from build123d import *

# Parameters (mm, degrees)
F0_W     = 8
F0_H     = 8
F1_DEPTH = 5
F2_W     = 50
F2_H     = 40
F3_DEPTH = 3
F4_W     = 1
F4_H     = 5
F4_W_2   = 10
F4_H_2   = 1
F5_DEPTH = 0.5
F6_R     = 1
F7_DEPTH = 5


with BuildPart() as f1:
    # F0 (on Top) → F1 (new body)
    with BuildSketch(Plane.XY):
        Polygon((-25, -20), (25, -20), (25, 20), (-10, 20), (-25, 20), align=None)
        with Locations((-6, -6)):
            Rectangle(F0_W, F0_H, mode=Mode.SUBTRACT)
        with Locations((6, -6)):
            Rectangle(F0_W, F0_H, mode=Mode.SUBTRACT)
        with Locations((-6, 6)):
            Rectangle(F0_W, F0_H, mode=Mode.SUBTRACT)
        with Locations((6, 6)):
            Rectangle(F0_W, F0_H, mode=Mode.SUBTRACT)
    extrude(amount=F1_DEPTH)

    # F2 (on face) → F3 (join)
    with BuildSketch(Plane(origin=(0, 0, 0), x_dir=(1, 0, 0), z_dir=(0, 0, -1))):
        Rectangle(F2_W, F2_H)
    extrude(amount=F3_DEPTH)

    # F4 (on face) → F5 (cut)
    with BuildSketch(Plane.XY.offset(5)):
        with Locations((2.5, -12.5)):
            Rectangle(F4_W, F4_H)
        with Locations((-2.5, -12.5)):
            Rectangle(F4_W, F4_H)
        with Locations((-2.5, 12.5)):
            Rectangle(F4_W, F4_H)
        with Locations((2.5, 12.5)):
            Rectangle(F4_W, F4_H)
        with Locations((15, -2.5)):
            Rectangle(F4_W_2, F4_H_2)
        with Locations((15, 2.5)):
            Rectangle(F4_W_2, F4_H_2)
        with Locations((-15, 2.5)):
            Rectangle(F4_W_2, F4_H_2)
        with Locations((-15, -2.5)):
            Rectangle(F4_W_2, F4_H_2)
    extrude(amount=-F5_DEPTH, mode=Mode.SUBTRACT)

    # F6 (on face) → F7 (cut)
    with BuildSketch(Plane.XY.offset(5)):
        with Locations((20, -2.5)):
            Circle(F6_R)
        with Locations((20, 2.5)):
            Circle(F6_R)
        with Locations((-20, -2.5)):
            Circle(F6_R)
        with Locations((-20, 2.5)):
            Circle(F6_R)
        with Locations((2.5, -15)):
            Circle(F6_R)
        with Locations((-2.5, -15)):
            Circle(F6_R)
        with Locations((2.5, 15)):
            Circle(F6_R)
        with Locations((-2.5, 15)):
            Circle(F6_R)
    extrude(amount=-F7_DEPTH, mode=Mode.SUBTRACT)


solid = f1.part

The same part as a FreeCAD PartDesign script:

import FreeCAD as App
import Part
import Sketcher

V = App.Vector

doc = App.newDocument("Part")
params = doc.addObject("Spreadsheet::Sheet", "Params")
for row, (alias, value) in enumerate([
    ("sketch1_width", "50 mm"),
    ("sketch1_width2", "8 mm"),
    ("sketch1_height", "40 mm"),
    ("pad1_length", "5 mm"),
    ("sketch2_width", "50 mm"),
    ("sketch2_height", "40 mm"),
    ("pad2_length", "3 mm"),
    ("sketch3_width", "1 mm"),
    ("sketch3_width2", "10 mm"),
    ("sketch3_height", "5 mm"),
    ("pocket1_length", "0.5 mm"),
    ("sketch4_diameter", "2 mm"),
    ("pocket2_length", "5 mm"),
], start=1):
    params.set(f"A{row}", alias)
    params.set(f"B{row}", "=" + value)
    params.setAlias(f"B{row}", alias)

body = doc.addObject("PartDesign::Body", "Body")

sketch1 = body.newObject("Sketcher::SketchObject", "Sketch")
sketch1.AttachmentSupport = (doc.getObject("XY_Plane"), [""])
sketch1.MapMode = "FlatFace"
sketch1.addGeometry(Part.LineSegment(V(-25, -20, 0), V(25, -20, 0)), False)
sketch1.addGeometry(Part.LineSegment(V(25, -20, 0), V(25, 20, 0)), False)
sketch1.addGeometry(Part.LineSegment(V(25, 20, 0), V(-25, 20, 0)), False)
sketch1.addGeometry(Part.LineSegment(V(-25, 20, 0), V(-25, -20, 0)), False)
sketch1.addGeometry(Part.LineSegment(V(-2, -10, 0), V(-10, -10, 0)), False)
sketch1.addGeometry(Part.LineSegment(V(-10, -10, 0), V(-10, -2, 0)), False)
sketch1.addGeometry(Part.LineSegment(V(-10, -2, 0), V(-2, -2, 0)), False)
sketch1.addGeometry(Part.LineSegment(V(-2, -2, 0), V(-2, -10, 0)), False)
sketch1.addGeometry(Part.LineSegment(V(10, -10, 0), V(2, -10, 0)), False)
sketch1.addGeometry(Part.LineSegment(V(2, -10, 0), V(2, -2, 0)), False)
sketch1.addGeometry(Part.LineSegment(V(2, -2, 0), V(10, -2, 0)), False)
sketch1.addGeometry(Part.LineSegment(V(10, -2, 0), V(10, -10, 0)), False)
sketch1.addGeometry(Part.LineSegment(V(-2, 2, 0), V(-10, 2, 0)), False)
sketch1.addGeometry(Part.LineSegment(V(-10, 2, 0), V(-10, 10, 0)), False)
sketch1.addGeometry(Part.LineSegment(V(-10, 10, 0), V(-2, 10, 0)), False)
sketch1.addGeometry(Part.LineSegment(V(-2, 10, 0), V(-2, 2, 0)), False)
sketch1.addGeometry(Part.LineSegment(V(10, 2, 0), V(2, 2, 0)), False)
sketch1.addGeometry(Part.LineSegment(V(2, 2, 0), V(2, 10, 0)), False)
sketch1.addGeometry(Part.LineSegment(V(2, 10, 0), V(10, 10, 0)), False)
sketch1.addGeometry(Part.LineSegment(V(10, 10, 0), V(10, 2, 0)), False)
sketch1.addConstraint(Sketcher.Constraint("Coincident", 0, 2, 1, 1))
sketch1.addConstraint(Sketcher.Constraint("Coincident", 1, 2, 2, 1))
sketch1.addConstraint(Sketcher.Constraint("Coincident", 2, 2, 3, 1))
sketch1.addConstraint(Sketcher.Constraint("Coincident", 3, 2, 0, 1))
sketch1.addConstraint(Sketcher.Constraint("Coincident", 4, 2, 5, 1))
sketch1.addConstraint(Sketcher.Constraint("Coincident", 5, 2, 6, 1))
sketch1.addConstraint(Sketcher.Constraint("Coincident", 6, 2, 7, 1))
sketch1.addConstraint(Sketcher.Constraint("Coincident", 7, 2, 4, 1))
sketch1.addConstraint(Sketcher.Constraint("Coincident", 8, 2, 9, 1))
sketch1.addConstraint(Sketcher.Constraint("Coincident", 9, 2, 10, 1))
sketch1.addConstraint(Sketcher.Constraint("Coincident", 10, 2, 11, 1))
sketch1.addConstraint(Sketcher.Constraint("Coincident", 11, 2, 8, 1))
sketch1.addConstraint(Sketcher.Constraint("Coincident", 12, 2, 13, 1))
sketch1.addConstraint(Sketcher.Constraint("Coincident", 13, 2, 14, 1))
sketch1.addConstraint(Sketcher.Constraint("Coincident", 14, 2, 15, 1))
sketch1.addConstraint(Sketcher.Constraint("Coincident", 15, 2, 12, 1))
sketch1.addConstraint(Sketcher.Constraint("Coincident", 16, 2, 17, 1))
sketch1.addConstraint(Sketcher.Constraint("Coincident", 17, 2, 18, 1))
sketch1.addConstraint(Sketcher.Constraint("Coincident", 18, 2, 19, 1))
sketch1.addConstraint(Sketcher.Constraint("Coincident", 19, 2, 16, 1))
sketch1.addConstraint(Sketcher.Constraint("Horizontal", 0))
sketch1.addConstraint(Sketcher.Constraint("Vertical", 1))
sketch1.addConstraint(Sketcher.Constraint("Horizontal", 2))
sketch1.addConstraint(Sketcher.Constraint("Vertical", 3))
sketch1.addConstraint(Sketcher.Constraint("Horizontal", 4))
sketch1.addConstraint(Sketcher.Constraint("Vertical", 5))
sketch1.addConstraint(Sketcher.Constraint("Horizontal", 6))
sketch1.addConstraint(Sketcher.Constraint("Vertical", 7))
sketch1.addConstraint(Sketcher.Constraint("Horizontal", 8))
sketch1.addConstraint(Sketcher.Constraint("Vertical", 9))
sketch1.addConstraint(Sketcher.Constraint("Horizontal", 10))
sketch1.addConstraint(Sketcher.Constraint("Vertical", 11))
sketch1.addConstraint(Sketcher.Constraint("Horizontal", 12))
sketch1.addConstraint(Sketcher.Constraint("Vertical", 13))
sketch1.addConstraint(Sketcher.Constraint("Horizontal", 14))
sketch1.addConstraint(Sketcher.Constraint("Vertical", 15))
sketch1.addConstraint(Sketcher.Constraint("Horizontal", 16))
sketch1.addConstraint(Sketcher.Constraint("Vertical", 17))
sketch1.addConstraint(Sketcher.Constraint("Horizontal", 18))
sketch1.addConstraint(Sketcher.Constraint("Vertical", 19))
sketch1.addConstraint(Sketcher.Constraint("Symmetric", 0, 2, 2, 2, -1, 1))
sketch1.addConstraint(Sketcher.Constraint("Symmetric", 10, 2, 12, 2, -1, 1))
sketch1.addConstraint(Sketcher.Constraint("Symmetric", 8, 2, 14, 2, -1, 1))
sketch1.addConstraint(Sketcher.Constraint("Symmetric", 6, 2, 16, 2, -1, 1))
sketch1.addConstraint(Sketcher.Constraint("Symmetric", 4, 2, 18, 2, -1, 1))
sketch1.addConstraint(Sketcher.Constraint("Symmetric", 7, 2, 8, 2, -2))
sketch1.addConstraint(Sketcher.Constraint("Symmetric", 5, 2, 10, 2, -2))
sketch1.addConstraint(Sketcher.Constraint("Equal", 18, 5))
sketch1.addConstraint(Sketcher.Constraint("DistanceX", 0, 1, 0, 2, 50.0))
sketch1.addConstraint(Sketcher.Constraint("DistanceX", 4, 2, 4, 1, 8.0))
sketch1.addConstraint(Sketcher.Constraint("DistanceY", 1, 1, 1, 2, 40.0))
sketch1.addConstraint(Sketcher.Constraint("DistanceX", 4, 2, -1, 1, 10.0))
sketch1.addConstraint(Sketcher.Constraint("DistanceY", 4, 2, -1, 1, 10.0))
sketch1.setExpression("Constraints[48]", "Params.sketch1_width")
sketch1.setExpression("Constraints[49]", "Params.sketch1_width2")
sketch1.setExpression("Constraints[50]", "Params.sketch1_height")
pad1 = body.newObject("PartDesign::Pad", "Pad")
pad1.Profile = sketch1
pad1.setExpression("Length", "Params.pad1_length")

sketch2 = body.newObject("Sketcher::SketchObject", "Sketch001")
sketch2.AttachmentSupport = (doc.getObject("XY_Plane"), [""])
sketch2.MapMode = "FlatFace"
sketch2.addGeometry(Part.LineSegment(V(-25, -20, 0), V(-25, 20, 0)), False)
sketch2.addGeometry(Part.LineSegment(V(-25, 20, 0), V(25, 20, 0)), False)
sketch2.addGeometry(Part.LineSegment(V(25, 20, 0), V(25, -20, 0)), False)
sketch2.addGeometry(Part.LineSegment(V(25, -20, 0), V(-25, -20, 0)), False)
sketch2.addConstraint(Sketcher.Constraint("Coincident", 0, 2, 1, 1))
sketch2.addConstraint(Sketcher.Constraint("Coincident", 1, 2, 2, 1))
sketch2.addConstraint(Sketcher.Constraint("Coincident", 2, 2, 3, 1))
sketch2.addConstraint(Sketcher.Constraint("Coincident", 3, 2, 0, 1))
sketch2.addConstraint(Sketcher.Constraint("Vertical", 0))
sketch2.addConstraint(Sketcher.Constraint("Horizontal", 1))
sketch2.addConstraint(Sketcher.Constraint("Vertical", 2))
sketch2.addConstraint(Sketcher.Constraint("Horizontal", 3))
sketch2.addConstraint(Sketcher.Constraint("Symmetric", 0, 2, 2, 2, -1, 1))
sketch2.addConstraint(Sketcher.Constraint("DistanceX", 1, 1, 1, 2, 50.0))
sketch2.addConstraint(Sketcher.Constraint("DistanceY", 0, 1, 0, 2, 40.0))
sketch2.setExpression("Constraints[9]", "Params.sketch2_width")
sketch2.setExpression("Constraints[10]", "Params.sketch2_height")
pad2 = body.newObject("PartDesign::Pad", "Pad001")
pad2.Profile = sketch2
pad2.setExpression("Length", "Params.pad2_length")
pad2.Reversed = True

sketch3 = body.newObject("Sketcher::SketchObject", "Sketch002")
sketch3.AttachmentSupport = (doc.getObject("XY_Plane"), [""])
sketch3.MapMode = "FlatFace"
sketch3.AttachmentOffset = App.Placement(V(0, 0, 5), App.Rotation())
sketch3.addGeometry(Part.LineSegment(V(2, -10, 0), V(2, -15, 0)), False)
sketch3.addGeometry(Part.LineSegment(V(2, -15, 0), V(3, -15, 0)), False)
sketch3.addGeometry(Part.LineSegment(V(3, -15, 0), V(3, -10, 0)), False)
sketch3.addGeometry(Part.LineSegment(V(3, -10, 0), V(2, -10, 0)), False)
sketch3.addGeometry(Part.LineSegment(V(-3, -10, 0), V(-3, -15, 0)), False)
sketch3.addGeometry(Part.LineSegment(V(-3, -15, 0), V(-2, -15, 0)), False)
sketch3.addGeometry(Part.LineSegment(V(-2, -15, 0), V(-2, -10, 0)), False)
sketch3.addGeometry(Part.LineSegment(V(-2, -10, 0), V(-3, -10, 0)), False)
sketch3.addGeometry(Part.LineSegment(V(-3, 15, 0), V(-3, 10, 0)), False)
sketch3.addGeometry(Part.LineSegment(V(-3, 10, 0), V(-2, 10, 0)), False)
sketch3.addGeometry(Part.LineSegment(V(-2, 10, 0), V(-2, 15, 0)), False)
sketch3.addGeometry(Part.LineSegment(V(-2, 15, 0), V(-3, 15, 0)), False)
sketch3.addGeometry(Part.LineSegment(V(2, 15, 0), V(2, 10, 0)), False)
sketch3.addGeometry(Part.LineSegment(V(2, 10, 0), V(3, 10, 0)), False)
sketch3.addGeometry(Part.LineSegment(V(3, 10, 0), V(3, 15, 0)), False)
sketch3.addGeometry(Part.LineSegment(V(3, 15, 0), V(2, 15, 0)), False)
sketch3.addGeometry(Part.LineSegment(V(10, -2, 0), V(10, -3, 0)), False)
sketch3.addGeometry(Part.LineSegment(V(10, -3, 0), V(20, -3, 0)), False)
sketch3.addGeometry(Part.LineSegment(V(20, -3, 0), V(20, -2, 0)), False)
sketch3.addGeometry(Part.LineSegment(V(20, -2, 0), V(10, -2, 0)), False)
sketch3.addGeometry(Part.LineSegment(V(10, 3, 0), V(10, 2, 0)), False)
sketch3.addGeometry(Part.LineSegment(V(10, 2, 0), V(20, 2, 0)), False)
sketch3.addGeometry(Part.LineSegment(V(20, 2, 0), V(20, 3, 0)), False)
sketch3.addGeometry(Part.LineSegment(V(20, 3, 0), V(10, 3, 0)), False)
sketch3.addGeometry(Part.LineSegment(V(-20, 3, 0), V(-20, 2, 0)), False)
sketch3.addGeometry(Part.LineSegment(V(-20, 2, 0), V(-10, 2, 0)), False)
sketch3.addGeometry(Part.LineSegment(V(-10, 2, 0), V(-10, 3, 0)), False)
sketch3.addGeometry(Part.LineSegment(V(-10, 3, 0), V(-20, 3, 0)), False)
sketch3.addGeometry(Part.LineSegment(V(-20, -2, 0), V(-20, -3, 0)), False)
sketch3.addGeometry(Part.LineSegment(V(-20, -3, 0), V(-10, -3, 0)), False)
sketch3.addGeometry(Part.LineSegment(V(-10, -3, 0), V(-10, -2, 0)), False)
sketch3.addGeometry(Part.LineSegment(V(-10, -2, 0), V(-20, -2, 0)), False)
sketch3.addConstraint(Sketcher.Constraint("Coincident", 0, 2, 1, 1))
sketch3.addConstraint(Sketcher.Constraint("Coincident", 1, 2, 2, 1))
sketch3.addConstraint(Sketcher.Constraint("Coincident", 2, 2, 3, 1))
sketch3.addConstraint(Sketcher.Constraint("Coincident", 3, 2, 0, 1))
sketch3.addConstraint(Sketcher.Constraint("Coincident", 4, 2, 5, 1))
sketch3.addConstraint(Sketcher.Constraint("Coincident", 5, 2, 6, 1))
sketch3.addConstraint(Sketcher.Constraint("Coincident", 6, 2, 7, 1))
sketch3.addConstraint(Sketcher.Constraint("Coincident", 7, 2, 4, 1))
sketch3.addConstraint(Sketcher.Constraint("Coincident", 8, 2, 9, 1))
sketch3.addConstraint(Sketcher.Constraint("Coincident", 9, 2, 10, 1))
sketch3.addConstraint(Sketcher.Constraint("Coincident", 10, 2, 11, 1))
sketch3.addConstraint(Sketcher.Constraint("Coincident", 11, 2, 8, 1))
sketch3.addConstraint(Sketcher.Constraint("Coincident", 12, 2, 13, 1))
sketch3.addConstraint(Sketcher.Constraint("Coincident", 13, 2, 14, 1))
sketch3.addConstraint(Sketcher.Constraint("Coincident", 14, 2, 15, 1))
sketch3.addConstraint(Sketcher.Constraint("Coincident", 15, 2, 12, 1))
sketch3.addConstraint(Sketcher.Constraint("Coincident", 16, 2, 17, 1))
sketch3.addConstraint(Sketcher.Constraint("Coincident", 17, 2, 18, 1))
sketch3.addConstraint(Sketcher.Constraint("Coincident", 18, 2, 19, 1))
sketch3.addConstraint(Sketcher.Constraint("Coincident", 19, 2, 16, 1))
sketch3.addConstraint(Sketcher.Constraint("Coincident", 20, 2, 21, 1))
sketch3.addConstraint(Sketcher.Constraint("Coincident", 21, 2, 22, 1))
sketch3.addConstraint(Sketcher.Constraint("Coincident", 22, 2, 23, 1))
sketch3.addConstraint(Sketcher.Constraint("Coincident", 23, 2, 20, 1))
sketch3.addConstraint(Sketcher.Constraint("Coincident", 24, 2, 25, 1))
sketch3.addConstraint(Sketcher.Constraint("Coincident", 25, 2, 26, 1))
sketch3.addConstraint(Sketcher.Constraint("Coincident", 26, 2, 27, 1))
sketch3.addConstraint(Sketcher.Constraint("Coincident", 27, 2, 24, 1))
sketch3.addConstraint(Sketcher.Constraint("Coincident", 28, 2, 29, 1))
sketch3.addConstraint(Sketcher.Constraint("Coincident", 29, 2, 30, 1))
sketch3.addConstraint(Sketcher.Constraint("Coincident", 30, 2, 31, 1))
sketch3.addConstraint(Sketcher.Constraint("Coincident", 31, 2, 28, 1))
sketch3.addConstraint(Sketcher.Constraint("Vertical", 0))
sketch3.addConstraint(Sketcher.Constraint("Horizontal", 1))
sketch3.addConstraint(Sketcher.Constraint("Vertical", 2))
sketch3.addConstraint(Sketcher.Constraint("Horizontal", 3))
sketch3.addConstraint(Sketcher.Constraint("Vertical", 4))
sketch3.addConstraint(Sketcher.Constraint("Horizontal", 5))
sketch3.addConstraint(Sketcher.Constraint("Vertical", 6))
sketch3.addConstraint(Sketcher.Constraint("Horizontal", 7))
sketch3.addConstraint(Sketcher.Constraint("Vertical", 8))
sketch3.addConstraint(Sketcher.Constraint("Horizontal", 9))
sketch3.addConstraint(Sketcher.Constraint("Vertical", 10))
sketch3.addConstraint(Sketcher.Constraint("Horizontal", 11))
sketch3.addConstraint(Sketcher.Constraint("Vertical", 12))
sketch3.addConstraint(Sketcher.Constraint("Horizontal", 13))
sketch3.addConstraint(Sketcher.Constraint("Vertical", 14))
sketch3.addConstraint(Sketcher.Constraint("Horizontal", 15))
sketch3.addConstraint(Sketcher.Constraint("Vertical", 16))
sketch3.addConstraint(Sketcher.Constraint("Horizontal", 17))
sketch3.addConstraint(Sketcher.Constraint("Vertical", 18))
sketch3.addConstraint(Sketcher.Constraint("Horizontal", 19))
sketch3.addConstraint(Sketcher.Constraint("Vertical", 20))
sketch3.addConstraint(Sketcher.Constraint("Horizontal", 21))
sketch3.addConstraint(Sketcher.Constraint("Vertical", 22))
sketch3.addConstraint(Sketcher.Constraint("Horizontal", 23))
sketch3.addConstraint(Sketcher.Constraint("Vertical", 24))
sketch3.addConstraint(Sketcher.Constraint("Horizontal", 25))
sketch3.addConstraint(Sketcher.Constraint("Vertical", 26))
sketch3.addConstraint(Sketcher.Constraint("Horizontal", 27))
sketch3.addConstraint(Sketcher.Constraint("Vertical", 28))
sketch3.addConstraint(Sketcher.Constraint("Horizontal", 29))
sketch3.addConstraint(Sketcher.Constraint("Vertical", 30))
sketch3.addConstraint(Sketcher.Constraint("Horizontal", 31))
sketch3.addConstraint(Sketcher.Constraint("Symmetric", 2, 2, 8, 2, -1, 1))
sketch3.addConstraint(Sketcher.Constraint("Symmetric", 0, 2, 10, 2, -1, 1))
sketch3.addConstraint(Sketcher.Constraint("Symmetric", 6, 2, 12, 2, -1, 1))
sketch3.addConstraint(Sketcher.Constraint("Symmetric", 4, 2, 14, 2, -1, 1))
sketch3.addConstraint(Sketcher.Constraint("Symmetric", 18, 2, 24, 2, -1, 1))
sketch3.addConstraint(Sketcher.Constraint("Symmetric", 16, 2, 26, 2, -1, 1))
sketch3.addConstraint(Sketcher.Constraint("Symmetric", 22, 2, 28, 2, -1, 1))
sketch3.addConstraint(Sketcher.Constraint("Symmetric", 20, 2, 30, 2, -1, 1))
sketch3.addConstraint(Sketcher.Constraint("Symmetric", 1, 2, 4, 2, -2))
sketch3.addConstraint(Sketcher.Constraint("Symmetric", 3, 2, 6, 2, -2))
sketch3.addConstraint(Sketcher.Constraint("Symmetric", 21, 2, 24, 2, -2))
sketch3.addConstraint(Sketcher.Constraint("Symmetric", 23, 2, 26, 2, -2))
sketch3.addConstraint(Sketcher.Constraint("Equal", 15, 16))
sketch3.addConstraint(Sketcher.Constraint("DistanceX", 1, 1, 1, 2, 1.0))
sketch3.addConstraint(Sketcher.Constraint("DistanceX", 17, 1, 17, 2, 10.0))
sketch3.addConstraint(Sketcher.Constraint("DistanceY", 0, 2, 0, 1, 5.0))
sketch3.addConstraint(Sketcher.Constraint("DistanceX", -1, 1, 0, 2, 2.0))
sketch3.addConstraint(Sketcher.Constraint("DistanceY", 0, 2, -1, 1, 15.0))
sketch3.addConstraint(Sketcher.Constraint("DistanceX", -1, 1, 16, 2, 10.0))
sketch3.addConstraint(Sketcher.Constraint("DistanceY", 16, 2, -1, 1, 3.0))
sketch3.setExpression("Constraints[77]", "Params.sketch3_width")
sketch3.setExpression("Constraints[78]", "Params.sketch3_width2")
sketch3.setExpression("Constraints[79]", "Params.sketch3_height")
pocket1 = body.newObject("PartDesign::Pocket", "Pocket")
pocket1.Profile = sketch3
pocket1.setExpression("Length", "Params.pocket1_length")

sketch4 = body.newObject("Sketcher::SketchObject", "Sketch003")
sketch4.AttachmentSupport = (doc.getObject("XY_Plane"), [""])
sketch4.MapMode = "FlatFace"
sketch4.AttachmentOffset = App.Placement(V(0, 0, 5), App.Rotation())
sketch4.addGeometry(Part.Circle(V(20, -2.5, 0), V(0, 0, 1), 1), False)
sketch4.addGeometry(Part.Circle(V(20, 2.5, 0), V(0, 0, 1), 1), False)
sketch4.addGeometry(Part.Circle(V(-20, -2.5, 0), V(0, 0, 1), 1), False)
sketch4.addGeometry(Part.Circle(V(-20, 2.5, 0), V(0, 0, 1), 1), False)
sketch4.addGeometry(Part.Circle(V(2.5, -15, 0), V(0, 0, 1), 1), False)
sketch4.addGeometry(Part.Circle(V(-2.5, -15, 0), V(0, 0, 1), 1), False)
sketch4.addGeometry(Part.Circle(V(2.5, 15, 0), V(0, 0, 1), 1), False)
sketch4.addGeometry(Part.Circle(V(-2.5, 15, 0), V(0, 0, 1), 1), False)
sketch4.addConstraint(Sketcher.Constraint("Equal", 0, 1))
sketch4.addConstraint(Sketcher.Constraint("Equal", 1, 2))
sketch4.addConstraint(Sketcher.Constraint("Equal", 2, 3))
sketch4.addConstraint(Sketcher.Constraint("Equal", 3, 4))
sketch4.addConstraint(Sketcher.Constraint("Equal", 4, 5))
sketch4.addConstraint(Sketcher.Constraint("Equal", 5, 6))
sketch4.addConstraint(Sketcher.Constraint("Equal", 6, 7))
sketch4.addConstraint(Sketcher.Constraint("Symmetric", 1, 3, 2, 3, -1, 1))
sketch4.addConstraint(Sketcher.Constraint("Symmetric", 0, 3, 3, 3, -1, 1))
sketch4.addConstraint(Sketcher.Constraint("Symmetric", 5, 3, 6, 3, -1, 1))
sketch4.addConstraint(Sketcher.Constraint("Symmetric", 4, 3, 7, 3, -1, 1))
sketch4.addConstraint(Sketcher.Constraint("Symmetric", 0, 3, 2, 3, -2))
sketch4.addConstraint(Sketcher.Constraint("Symmetric", 4, 3, 5, 3, -2))
sketch4.addConstraint(Sketcher.Constraint("Diameter", 0, 2.0))
sketch4.addConstraint(Sketcher.Constraint("DistanceX", -1, 1, 0, 3, 20.0))
sketch4.addConstraint(Sketcher.Constraint("DistanceY", 4, 3, -1, 1, 15.0))
sketch4.addConstraint(Sketcher.Constraint("DistanceY", 0, 3, 1, 3, 5.0))
sketch4.addConstraint(Sketcher.Constraint("DistanceX", 5, 3, 4, 3, 5.0))
sketch4.setExpression("Constraints[13]", "Params.sketch4_diameter")
pocket2 = body.newObject("PartDesign::Pocket", "Pocket001")
pocket2.Profile = sketch4
pocket2.setExpression("Length", "Params.pocket2_length")

doc.recompute()
